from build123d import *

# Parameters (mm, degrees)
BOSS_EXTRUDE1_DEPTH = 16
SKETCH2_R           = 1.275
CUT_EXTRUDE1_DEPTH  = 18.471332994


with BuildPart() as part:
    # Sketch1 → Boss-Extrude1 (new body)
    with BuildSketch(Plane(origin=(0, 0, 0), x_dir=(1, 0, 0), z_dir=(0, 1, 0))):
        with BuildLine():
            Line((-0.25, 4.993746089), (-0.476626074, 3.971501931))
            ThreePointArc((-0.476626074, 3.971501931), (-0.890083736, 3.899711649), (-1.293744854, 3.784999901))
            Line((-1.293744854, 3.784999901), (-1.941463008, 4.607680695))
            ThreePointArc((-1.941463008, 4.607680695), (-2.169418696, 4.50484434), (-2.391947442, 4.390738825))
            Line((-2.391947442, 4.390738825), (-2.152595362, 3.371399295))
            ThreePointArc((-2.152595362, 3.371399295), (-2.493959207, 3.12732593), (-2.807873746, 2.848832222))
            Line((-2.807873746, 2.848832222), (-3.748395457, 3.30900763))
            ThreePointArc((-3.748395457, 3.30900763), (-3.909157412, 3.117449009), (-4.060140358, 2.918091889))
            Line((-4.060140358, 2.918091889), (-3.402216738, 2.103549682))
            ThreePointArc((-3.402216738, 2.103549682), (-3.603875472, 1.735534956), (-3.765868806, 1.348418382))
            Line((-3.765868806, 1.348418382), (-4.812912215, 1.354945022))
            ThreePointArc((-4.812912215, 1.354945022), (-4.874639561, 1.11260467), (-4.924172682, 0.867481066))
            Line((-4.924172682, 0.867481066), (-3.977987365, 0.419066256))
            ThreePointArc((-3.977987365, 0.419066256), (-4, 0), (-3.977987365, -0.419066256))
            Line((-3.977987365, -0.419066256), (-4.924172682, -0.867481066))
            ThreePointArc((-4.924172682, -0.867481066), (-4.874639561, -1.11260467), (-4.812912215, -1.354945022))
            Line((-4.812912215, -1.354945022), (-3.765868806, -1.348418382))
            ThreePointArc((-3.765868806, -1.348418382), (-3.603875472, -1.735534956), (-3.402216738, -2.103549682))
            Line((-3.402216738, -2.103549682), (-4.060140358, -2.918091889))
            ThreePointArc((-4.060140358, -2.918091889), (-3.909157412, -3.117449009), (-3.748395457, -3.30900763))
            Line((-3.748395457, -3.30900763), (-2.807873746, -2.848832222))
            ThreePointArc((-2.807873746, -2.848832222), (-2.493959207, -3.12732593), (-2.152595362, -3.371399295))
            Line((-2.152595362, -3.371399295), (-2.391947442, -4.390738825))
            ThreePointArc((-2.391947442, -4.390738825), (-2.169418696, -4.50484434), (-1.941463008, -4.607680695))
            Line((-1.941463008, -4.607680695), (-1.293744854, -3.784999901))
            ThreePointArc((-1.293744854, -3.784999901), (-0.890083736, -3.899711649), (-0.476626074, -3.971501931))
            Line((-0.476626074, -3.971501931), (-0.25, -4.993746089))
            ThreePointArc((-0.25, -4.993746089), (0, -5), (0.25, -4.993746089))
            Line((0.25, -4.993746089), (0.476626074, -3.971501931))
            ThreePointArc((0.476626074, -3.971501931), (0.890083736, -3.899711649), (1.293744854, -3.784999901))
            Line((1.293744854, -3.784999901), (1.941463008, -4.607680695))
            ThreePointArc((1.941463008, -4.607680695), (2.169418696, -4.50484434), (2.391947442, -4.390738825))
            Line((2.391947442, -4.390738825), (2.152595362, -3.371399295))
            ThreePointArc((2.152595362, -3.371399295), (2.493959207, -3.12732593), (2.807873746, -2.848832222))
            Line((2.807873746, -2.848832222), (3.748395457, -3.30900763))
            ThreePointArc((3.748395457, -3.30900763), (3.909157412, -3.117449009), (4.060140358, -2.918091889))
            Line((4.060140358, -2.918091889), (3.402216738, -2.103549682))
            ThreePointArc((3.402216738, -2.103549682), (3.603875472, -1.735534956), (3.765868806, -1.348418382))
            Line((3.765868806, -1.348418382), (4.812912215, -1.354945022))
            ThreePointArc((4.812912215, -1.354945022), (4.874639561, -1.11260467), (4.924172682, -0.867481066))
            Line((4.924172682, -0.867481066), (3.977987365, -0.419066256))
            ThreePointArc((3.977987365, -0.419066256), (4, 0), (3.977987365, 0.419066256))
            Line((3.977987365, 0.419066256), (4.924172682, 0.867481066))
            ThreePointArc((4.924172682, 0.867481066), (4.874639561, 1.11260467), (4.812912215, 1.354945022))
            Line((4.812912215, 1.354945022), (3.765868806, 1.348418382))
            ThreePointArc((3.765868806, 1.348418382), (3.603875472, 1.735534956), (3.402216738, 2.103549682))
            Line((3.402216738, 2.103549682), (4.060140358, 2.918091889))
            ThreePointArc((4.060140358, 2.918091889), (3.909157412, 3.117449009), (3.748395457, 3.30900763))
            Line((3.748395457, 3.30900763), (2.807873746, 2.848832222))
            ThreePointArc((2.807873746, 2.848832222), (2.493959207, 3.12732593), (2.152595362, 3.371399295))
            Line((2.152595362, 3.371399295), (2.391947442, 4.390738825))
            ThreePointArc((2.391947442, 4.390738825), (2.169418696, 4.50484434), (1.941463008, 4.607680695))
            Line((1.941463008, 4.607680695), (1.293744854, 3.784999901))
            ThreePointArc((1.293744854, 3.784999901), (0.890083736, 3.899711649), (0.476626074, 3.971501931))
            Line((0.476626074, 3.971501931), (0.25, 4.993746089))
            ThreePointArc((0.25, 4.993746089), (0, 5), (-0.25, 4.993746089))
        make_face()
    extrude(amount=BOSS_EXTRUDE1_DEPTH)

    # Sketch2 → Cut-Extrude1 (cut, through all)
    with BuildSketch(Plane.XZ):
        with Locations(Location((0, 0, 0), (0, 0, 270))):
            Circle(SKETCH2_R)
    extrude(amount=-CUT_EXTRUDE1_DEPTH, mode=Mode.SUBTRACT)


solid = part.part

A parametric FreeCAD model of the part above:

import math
import FreeCAD as App
import Part
import Sketcher

V = App.Vector
Q = App.Units.Quantity

doc = App.newDocument("Part")
params = doc.addObject("Spreadsheet::Sheet", "Params")
for row, (alias, value) in enumerate([
    ("sketch1_radius", "4 mm"),
    ("sketch1_radius2", "4.999999 mm"),
    ("pad1_length", "16 mm"),
    ("sketch2_diameter", "2.55 mm"),
], start=1):
    params.set(f"A{row}", alias)
    params.set(f"B{row}", "=" + value)
    params.setAlias(f"B{row}", alias)

body = doc.addObject("PartDesign::Body", "Body")

sketch1 = body.newObject("Sketcher::SketchObject", "Sketch")
sketch1.AttachmentSupport = (doc.getObject("XZ_Plane"), [""])
sketch1.MapMode = "FlatFace"
sketch1.addGeometry([
    Part.LineSegment(V(-0.25, -4.993746, 0), V(-0.476626, -3.971502, 0)),
    Part.ArcOfCircle(Part.Circle(V(0, 0, 0), V(0, 0, 1), 4), math.radians(-108.87086), math.radians(-96.843425)),
    Part.LineSegment(V(-1.293745, -3.785, 0), V(-1.941463, -4.607681, 0)),
    Part.ArcOfCircle(Part.Circle(V(0, -0.000001, 0), V(0, 0, 1), 4.999999), math.radians(-118.58027), math.radians(-112.848301)),
    Part.LineSegment(V(-2.391947, -4.390739, 0), V(-2.152595, -3.371399, 0)),
    Part.ArcOfCircle(Part.Circle(V(0, 0, 0), V(0, 0, 1), 4), math.radians(-134.585146), math.radians(-122.557711)),
    Part.LineSegment(V(-2.807874, -2.848832, 0), V(-3.748395, -3.309008, 0)),
    Part.ArcOfCircle(Part.Circle(V(0, 0, 0), V(0, 0, 1), 5), math.radians(-144.294555), math.radians(-138.562588)),
    Part.LineSegment(V(-4.06014, -2.918092, 0), V(-3.402217, -2.10355, 0)),
    Part.ArcOfCircle(Part.Circle(V(0, 0, 0), V(0, 0, 1), 4), math.radians(-160.299432), math.radians(-148.271997)),
    Part.LineSegment(V(-3.765869, -1.348418, 0), V(-4.812912, -1.354945, 0)),
    Part.ArcOfCircle(Part.Circle(V(0, 0, 0), V(0, 0, 1), 5), math.radians(-170.008841), math.radians(-164.276873)),
    Part.LineSegment(V(-4.924173, -0.867481, 0), V(-3.977987, -0.419066, 0)),
    Part.ArcOfCircle(Part.Circle(V(0, 0, 0), V(0, 0, 1), 4), math.radians(173.986283), math.radians(186.013717)),
    Part.LineSegment(V(-3.977987, 0.419066, 0), V(-4.924173, 0.867481, 0)),
    Part.ArcOfCircle(Part.Circle(V(0, 0, 0), V(0, 0, 1), 5), math.radians(164.276873), math.radians(170.008841)),
    Part.LineSegment(V(-4.812912, 1.354945, 0), V(-3.765869, 1.348418, 0)),
    Part.ArcOfCircle(Part.Circle(V(0, 0, 0), V(0, 0, 1), 4), math.radians(148.271997), math.radians(160.299432)),
    Part.LineSegment(V(-3.402217, 2.10355, 0), V(-4.06014, 2.918092, 0)),
    Part.ArcOfCircle(Part.Circle(V(0, 0, 0), V(0, 0, 1), 5), math.radians(138.562588), math.radians(144.294555)),
    Part.LineSegment(V(-3.748395, 3.309008, 0), V(-2.807874, 2.848832, 0)),
    Part.ArcOfCircle(Part.Circle(V(0, 0, 0), V(0, 0, 1), 4), math.radians(122.557711), math.radians(134.585146)),
    Part.LineSegment(V(-2.152595, 3.371399, 0), V(-2.391947, 4.390739, 0)),
    Part.ArcOfCircle(Part.Circle(V(0, 0.000001, 0), V(0, 0, 1), 4.999999), math.radians(112.848301), math.radians(118.58027)),
    Part.LineSegment(V(-1.941463, 4.607681, 0), V(-1.293745, 3.785, 0)),
    Part.ArcOfCircle(Part.Circle(V(0, 0, 0), V(0, 0, 1), 4), math.radians(96.843425), math.radians(108.87086)),
    Part.LineSegment(V(-0.476626, 3.971502, 0), V(-0.25, 4.993746, 0)),
    Part.ArcOfCircle(Part.Circle(V(0, 0, 0), V(0, 0, 1), 5), math.radians(87.134016), math.radians(92.865984)),
    Part.LineSegment(V(0.25, 4.993746, 0), V(0.476626, 3.971502, 0)),
    Part.ArcOfCircle(Part.Circle(V(0, 0, 0), V(0, 0, 1), 4), math.radians(71.12914), math.radians(83.156575)),
    Part.LineSegment(V(1.293745, 3.785, 0), V(1.941463, 4.607681, 0)),
    Part.ArcOfCircle(Part.Circle(V(0, 0.000001, 0), V(0, 0, 1), 4.999999), math.radians(61.41973), math.radians(67.151699)),
    Part.LineSegment(V(2.391947, 4.390739, 0), V(2.152595, 3.371399, 0)),
    Part.ArcOfCircle(Part.Circle(V(0, 0, 0), V(0, 0, 1), 4), math.radians(45.414854), math.radians(57.442289)),
    Part.LineSegment(V(2.807874, 2.848832, 0), V(3.748395, 3.309008, 0)),
    Part.ArcOfCircle(Part.Circle(V(0, 0, 0), V(0, 0, 1), 5), math.radians(35.705445), math.radians(41.437412)),
    Part.LineSegment(V(4.06014, 2.918092, 0), V(3.402217, 2.10355, 0)),
    Part.ArcOfCircle(Part.Circle(V(0, 0, 0), V(0, 0, 1), 4), math.radians(19.700568), math.radians(31.728003)),
    Part.LineSegment(V(3.765869, 1.348418, 0), V(4.812912, 1.354945, 0)),
    Part.ArcOfCircle(Part.Circle(V(0, 0, 0), V(0, 0, 1), 5), math.radians(9.991159), math.radians(15.723127)),
    Part.LineSegment(V(4.924173, 0.867481, 0), V(3.977987, 0.419066, 0)),
    Part.ArcOfCircle(Part.Circle(V(0, 0, 0), V(0, 0, 1), 4), math.radians(-6.013717), math.radians(6.013717)),
    Part.LineSegment(V(3.977987, -0.419066, 0), V(4.924173, -0.867481, 0)),
    Part.ArcOfCircle(Part.Circle(V(0, 0, 0), V(0, 0, 1), 5), math.radians(-15.723127), math.radians(-9.991159)),
    Part.LineSegment(V(4.812912, -1.354945, 0), V(3.765869, -1.348418, 0)),
    Part.ArcOfCircle(Part.Circle(V(0, 0, 0), V(0, 0, 1), 4), math.radians(-31.728003), math.radians(-19.700568)),
    Part.LineSegment(V(3.402217, -2.10355, 0), V(4.06014, -2.918092, 0)),
    Part.ArcOfCircle(Part.Circle(V(0, 0, 0), V(0, 0, 1), 5), math.radians(-41.437412), math.radians(-35.705445)),
    Part.LineSegment(V(3.748395, -3.309008, 0), V(2.807874, -2.848832, 0)),
    Part.ArcOfCircle(Part.Circle(V(0, 0, 0), V(0, 0, 1), 4), math.radians(-57.442289), math.radians(-45.414854)),
    Part.LineSegment(V(2.152595, -3.371399, 0), V(2.391947, -4.390739, 0)),
    Part.ArcOfCircle(Part.Circle(V(0, -0.000001, 0), V(0, 0, 1), 4.999999), math.radians(-67.151699), math.radians(-61.41973)),
    Part.LineSegment(V(1.941463, -4.607681, 0), V(1.293745, -3.785, 0)),
    Part.ArcOfCircle(Part.Circle(V(0, 0, 0), V(0, 0, 1), 4), math.radians(-83.156575), math.radians(-71.12914)),
    Part.LineSegment(V(0.476626, -3.971502, 0), V(0.25, -4.993746, 0)),
    Part.ArcOfCircle(Part.Circle(V(0, 0, 0), V(0, 0, 1), 5), math.radians(-92.865984), math.radians(-87.134016)),
], False)
sketch1.addConstraint([
    Sketcher.Constraint("Coincident", 0, 2, 1, 2),
    Sketcher.Constraint("Coincident", 1, 1, 2, 1),
    Sketcher.Constraint("Coincident", 2, 2, 3, 2),
    Sketcher.Constraint("Coincident", 3, 1, 4, 1),
    Sketcher.Constraint("Coincident", 4, 2, 5, 2),
    Sketcher.Constraint("Coincident", 5, 1, 6, 1),
    Sketcher.Constraint("Coincident", 6, 2, 7, 2),
    Sketcher.Constraint("Coincident", 7, 1, 8, 1),
    Sketcher.Constraint("Coincident", 8, 2, 9, 2),
    Sketcher.Constraint("Coincident", 9, 1, 10, 1),
    Sketcher.Constraint("Coincident", 10, 2, 11, 2),
    Sketcher.Constraint("Coincident", 11, 1, 12, 1),
    Sketcher.Constraint("Coincident", 12, 2, 13, 2),
    Sketcher.Constraint("Coincident", 13, 1, 14, 1),
    Sketcher.Constraint("Coincident", 14, 2, 15, 2),
    Sketcher.Constraint("Coincident", 15, 1, 16, 1),
    Sketcher.Constraint("Coincident", 16, 2, 17, 2),
    Sketcher.Constraint("Coincident", 17, 1, 18, 1),
    Sketcher.Constraint("Coincident", 18, 2, 19, 2),
    Sketcher.Constraint("Coincident", 19, 1, 20, 1),
    Sketcher.Constraint("Coincident", 20, 2, 21, 2),
    Sketcher.Constraint("Coincident", 21, 1, 22, 1),
    Sketcher.Constraint("Coincident", 22, 2, 23, 2),
    Sketcher.Constraint("Coincident", 23, 1, 24, 1),
    Sketcher.Constraint("Coincident", 24, 2, 25, 2),
    Sketcher.Constraint("Coincident", 25, 1, 26, 1),
    Sketcher.Constraint("Coincident", 26, 2, 27, 2),
    Sketcher.Constraint("Coincident", 27, 1, 28, 1),
    Sketcher.Constraint("Coincident", 28, 2, 29, 2),
    Sketcher.Constraint("Coincident", 29, 1, 30, 1),
    Sketcher.Constraint("Coincident", 30, 2, 31, 2),
    Sketcher.Constraint("Coincident", 31, 1, 32, 1),
    Sketcher.Constraint("Coincident", 32, 2, 33, 2),
    Sketcher.Constraint("Coincident", 33, 1, 34, 1),
    Sketcher.Constraint("Coincident", 34, 2, 35, 2),
    Sketcher.Constraint("Coincident", 35, 1, 36, 1),
    Sketcher.Constraint("Coincident", 36, 2, 37, 2),
    Sketcher.Constraint("Coincident", 37, 1, 38, 1),
    Sketcher.Constraint("Coincident", 38, 2, 39, 2),
    Sketcher.Constraint("Coincident", 39, 1, 40, 1),
    Sketcher.Constraint("Coincident", 40, 2, 41, 2),
    Sketcher.Constraint("Coincident", 41, 1, 42, 1),
    Sketcher.Constraint("Coincident", 42, 2, 43, 2),
    Sketcher.Constraint("Coincident", 43, 1, 44, 1),
    Sketcher.Constraint("Coincident", 44, 2, 45, 2),
    Sketcher.Constraint("Coincident", 45, 1, 46, 1),
    Sketcher.Constraint("Coincident", 46, 2, 47, 2),
    Sketcher.Constraint("Coincident", 47, 1, 48, 1),
    Sketcher.Constraint("Coincident", 48, 2, 49, 2),
    Sketcher.Constraint("Coincident", 49, 1, 50, 1),
    Sketcher.Constraint("Coincident", 50, 2, 51, 2),
    Sketcher.Constraint("Coincident", 51, 1, 52, 1),
    Sketcher.Constraint("Coincident", 52, 2, 53, 2),
    Sketcher.Constraint("Coincident", 53, 1, 54, 1),
    Sketcher.Constraint("Coincident", 54, 2, 55, 2),
    Sketcher.Constraint("Coincident", 55, 1, 0, 1),
    Sketcher.Constraint("Coincident", 1, 3, -1, 1),
    Sketcher.Constraint("Coincident", 3, 3, -1, 1),
    Sketcher.Constraint("Coincident", 5, 3, -1, 1),
    Sketcher.Constraint("Coincident", 7, 3, -1, 1),
    Sketcher.Constraint("Coincident", 9, 3, -1, 1),
    Sketcher.Constraint("Coincident", 11, 3, -1, 1),
    Sketcher.Constraint("Coincident", 13, 3, -1, 1),
    Sketcher.Constraint("Coincident", 15, 3, -1, 1),
    Sketcher.Constraint("Coincident", 17, 3, -1, 1),
    Sketcher.Constraint("Coincident", 19, 3, -1, 1),
    Sketcher.Constraint("Coincident", 21, 3, -1, 1),
    Sketcher.Constraint("Coincident", 23, 3, -1, 1),
    Sketcher.Constraint("Coincident", 25, 3, -1, 1),
    Sketcher.Constraint("Coincident", 27, 3, -1, 1),
    Sketcher.Constraint("Coincident", 29, 3, -1, 1),
    Sketcher.Constraint("Coincident", 31, 3, -1, 1),
    Sketcher.Constraint("Coincident", 33, 3, -1, 1),
    Sketcher.Constraint("Coincident", 35, 3, -1, 1),
    Sketcher.Constraint("Coincident", 37, 3, -1, 1),
    Sketcher.Constraint("Coincident", 39, 3, -1, 1),
    Sketcher.Constraint("Coincident", 41, 3, -1, 1),
    Sketcher.Constraint("Coincident", 43, 3, -1, 1),
    Sketcher.Constraint("Coincident", 45, 3, -1, 1),
    Sketcher.Constraint("Coincident", 47, 3, -1, 1),
    Sketcher.Constraint("Coincident", 49, 3, -1, 1),
    Sketcher.Constraint("Coincident", 51, 3, -1, 1),
    Sketcher.Constraint("Coincident", 53, 3, -1, 1),
    Sketcher.Constraint("Coincident", 55, 3, -1, 1),
    Sketcher.Constraint("Equal", 1, 5),
    Sketcher.Constraint("Equal", 3, 7),
    Sketcher.Constraint("Equal", 5, 9),
    Sketcher.Constraint("Equal", 7, 11),
    Sketcher.Constraint("Equal", 9, 13),
    Sketcher.Constraint("Equal", 11, 15),
    Sketcher.Constraint("Equal", 13, 17),
    Sketcher.Constraint("Equal", 15, 19),
    Sketcher.Constraint("Equal", 17, 21),
    Sketcher.Constraint("Equal", 19, 23),
    Sketcher.Constraint("Equal", 21, 25),
    Sketcher.Constraint("Equal", 23, 27),
    Sketcher.Constraint("Equal", 25, 29),
    Sketcher.Constraint("Equal", 27, 31),
    Sketcher.Constraint("Equal", 29, 33),
    Sketcher.Constraint("Equal", 31, 35),
    Sketcher.Constraint("Equal", 33, 37),
    Sketcher.Constraint("Equal", 35, 39),
    Sketcher.Constraint("Equal", 37, 41),
    Sketcher.Constraint("Equal", 39, 43),
    Sketcher.Constraint("Equal", 41, 45),
    Sketcher.Constraint("Equal", 43, 47),
    Sketcher.Constraint("Equal", 45, 49),
    Sketcher.Constraint("Equal", 47, 51),
    Sketcher.Constraint("Equal", 49, 53),
    Sketcher.Constraint("Equal", 51, 55),
    Sketcher.Constraint("Parallel", 0, 28),
    Sketcher.Constraint("Parallel", 2, 30),
    Sketcher.Constraint("Parallel", 4, 32),
    Sketcher.Constraint("Parallel", 6, 34),
    Sketcher.Constraint("Parallel", 8, 36),
    Sketcher.Constraint("Parallel", 10, 38),
    Sketcher.Constraint("Parallel", 12, 40),
    Sketcher.Constraint("Parallel", 14, 42),
    Sketcher.Constraint("Parallel", 16, 44),
    Sketcher.Constraint("Parallel", 18, 46),
    Sketcher.Constraint("Parallel", 20, 48),
    Sketcher.Constraint("Parallel", 22, 50),
    Sketcher.Constraint("Parallel", 24, 52),
    Sketcher.Constraint("Parallel", 26, 54),
    Sketcher.Constraint("Horizontal", 26, 2, 27, 1),
    Sketcher.Constraint("Horizontal", 25, 1, 28, 2),
    Sketcher.Constraint("Horizontal", 24, 2, 29, 1),
    Sketcher.Constraint("Horizontal", 23, 1, 30, 2),
    Sketcher.Constraint("Horizontal", 22, 2, 31, 1),
    Sketcher.Constraint("Horizontal", 21, 1, 32, 2),
    Sketcher.Constraint("Horizontal", 20, 2, 33, 1),
    Sketcher.Constraint("Horizontal", 19, 1, 34, 2),
    Sketcher.Constraint("Horizontal", 18, 2, 35, 1),
    Sketcher.Constraint("Horizontal", 17, 1, 36, 2),
    Sketcher.Constraint("Horizontal", 16, 2, 37, 1),
    Sketcher.Constraint("Horizontal", 15, 1, 38, 2),
    Sketcher.Constraint("Horizontal", 14, 2, 39, 1),
    Sketcher.Constraint("Horizontal", 13, 1, 40, 2),
    Sketcher.Constraint("Horizontal", 12, 2, 41, 1),
    Sketcher.Constraint("Horizontal", 10, 2, 43, 1),
    Sketcher.Constraint("Horizontal", 8, 2, 45, 1),
    Sketcher.Constraint("Horizontal", 6, 2, 47, 1),
    Sketcher.Constraint("Horizontal", 4, 2, 49, 1),
    Sketcher.Constraint("Horizontal", 2, 2, 51, 1),
    Sketcher.Constraint("Horizontal", 0, 2, 53, 1),
    Sketcher.Constraint("Vertical", 12, 2, 13, 1),
    Sketcher.Constraint("Vertical", 10, 2, 15, 1),
    Sketcher.Constraint("Vertical", 8, 2, 17, 1),
    Sketcher.Constraint("Vertical", 6, 2, 19, 1),
    Sketcher.Constraint("Vertical", 4, 2, 21, 1),
    Sketcher.Constraint("Vertical", 2, 2, 23, 1),
    Sketcher.Constraint("Vertical", 0, 2, 25, 1),
    Sketcher.Constraint("Equal", 0, 2),
    Sketcher.Constraint("Equal", 2, 4),
    Sketcher.Constraint("Equal", 4, 6),
    Sketcher.Constraint("Equal", 6, 8),
    Sketcher.Constraint("Equal", 8, 10),
    Sketcher.Constraint("Equal", 10, 12),
    Sketcher.Constraint("Radius", 1, 4.0),
    Sketcher.Constraint("Radius", 3, 4.999999),
    Sketcher.Constraint("Angle", 0, Q("102.5 deg")),
    Sketcher.Constraint("DistanceX", 26, 2, -1, 1, 0.25),
    Sketcher.Constraint("DistanceY", 1, 1, -1, 1, 3.785),
    Sketcher.Constraint("DistanceY", 4, 2, -1, 1, 3.371399),
    Sketcher.Constraint("DistanceX", 7, 1, -1, 1, 4.06014),
    Sketcher.Constraint("DistanceX", 9, 1, -1, 1, 3.765869),
    Sketcher.Constraint("DistanceY", 11, 1, -1, 1, 0.867481),
    Sketcher.Constraint("DistanceX", 5, 1, -1, 1, 2.807874),
])
sketch1.setExpression("Constraints[158]", "Params.sketch1_radius")
sketch1.setExpression("Constraints[159]", "Params.sketch1_radius2")
pad1 = body.newObject("PartDesign::Pad", "Pad")
pad1.Profile = sketch1
pad1.setExpression("Length", "Params.pad1_length")
pad1.Reversed = True

sketch2 = body.newObject("Sketcher::SketchObject", "Sketch001")
sketch2.AttachmentSupport = (doc.getObject("XZ_Plane"), [""])
sketch2.MapMode = "FlatFace"
sketch2.addGeometry(Part.Circle(V(0, 0, 0), V(0, 0, 1), 1.275), False)
sketch2.addConstraint([
    Sketcher.Constraint("Coincident", 0, 3, -1, 1),
    Sketcher.Constraint("Diameter", 0, 2.55),
])
sketch2.setExpression("Constraints[1]", "Params.sketch2_diameter")
pocket1 = body.newObject("PartDesign::Pocket", "Pocket")
pocket1.Profile = sketch2
pocket1.Type = "ThroughAll"

doc.recompute()
